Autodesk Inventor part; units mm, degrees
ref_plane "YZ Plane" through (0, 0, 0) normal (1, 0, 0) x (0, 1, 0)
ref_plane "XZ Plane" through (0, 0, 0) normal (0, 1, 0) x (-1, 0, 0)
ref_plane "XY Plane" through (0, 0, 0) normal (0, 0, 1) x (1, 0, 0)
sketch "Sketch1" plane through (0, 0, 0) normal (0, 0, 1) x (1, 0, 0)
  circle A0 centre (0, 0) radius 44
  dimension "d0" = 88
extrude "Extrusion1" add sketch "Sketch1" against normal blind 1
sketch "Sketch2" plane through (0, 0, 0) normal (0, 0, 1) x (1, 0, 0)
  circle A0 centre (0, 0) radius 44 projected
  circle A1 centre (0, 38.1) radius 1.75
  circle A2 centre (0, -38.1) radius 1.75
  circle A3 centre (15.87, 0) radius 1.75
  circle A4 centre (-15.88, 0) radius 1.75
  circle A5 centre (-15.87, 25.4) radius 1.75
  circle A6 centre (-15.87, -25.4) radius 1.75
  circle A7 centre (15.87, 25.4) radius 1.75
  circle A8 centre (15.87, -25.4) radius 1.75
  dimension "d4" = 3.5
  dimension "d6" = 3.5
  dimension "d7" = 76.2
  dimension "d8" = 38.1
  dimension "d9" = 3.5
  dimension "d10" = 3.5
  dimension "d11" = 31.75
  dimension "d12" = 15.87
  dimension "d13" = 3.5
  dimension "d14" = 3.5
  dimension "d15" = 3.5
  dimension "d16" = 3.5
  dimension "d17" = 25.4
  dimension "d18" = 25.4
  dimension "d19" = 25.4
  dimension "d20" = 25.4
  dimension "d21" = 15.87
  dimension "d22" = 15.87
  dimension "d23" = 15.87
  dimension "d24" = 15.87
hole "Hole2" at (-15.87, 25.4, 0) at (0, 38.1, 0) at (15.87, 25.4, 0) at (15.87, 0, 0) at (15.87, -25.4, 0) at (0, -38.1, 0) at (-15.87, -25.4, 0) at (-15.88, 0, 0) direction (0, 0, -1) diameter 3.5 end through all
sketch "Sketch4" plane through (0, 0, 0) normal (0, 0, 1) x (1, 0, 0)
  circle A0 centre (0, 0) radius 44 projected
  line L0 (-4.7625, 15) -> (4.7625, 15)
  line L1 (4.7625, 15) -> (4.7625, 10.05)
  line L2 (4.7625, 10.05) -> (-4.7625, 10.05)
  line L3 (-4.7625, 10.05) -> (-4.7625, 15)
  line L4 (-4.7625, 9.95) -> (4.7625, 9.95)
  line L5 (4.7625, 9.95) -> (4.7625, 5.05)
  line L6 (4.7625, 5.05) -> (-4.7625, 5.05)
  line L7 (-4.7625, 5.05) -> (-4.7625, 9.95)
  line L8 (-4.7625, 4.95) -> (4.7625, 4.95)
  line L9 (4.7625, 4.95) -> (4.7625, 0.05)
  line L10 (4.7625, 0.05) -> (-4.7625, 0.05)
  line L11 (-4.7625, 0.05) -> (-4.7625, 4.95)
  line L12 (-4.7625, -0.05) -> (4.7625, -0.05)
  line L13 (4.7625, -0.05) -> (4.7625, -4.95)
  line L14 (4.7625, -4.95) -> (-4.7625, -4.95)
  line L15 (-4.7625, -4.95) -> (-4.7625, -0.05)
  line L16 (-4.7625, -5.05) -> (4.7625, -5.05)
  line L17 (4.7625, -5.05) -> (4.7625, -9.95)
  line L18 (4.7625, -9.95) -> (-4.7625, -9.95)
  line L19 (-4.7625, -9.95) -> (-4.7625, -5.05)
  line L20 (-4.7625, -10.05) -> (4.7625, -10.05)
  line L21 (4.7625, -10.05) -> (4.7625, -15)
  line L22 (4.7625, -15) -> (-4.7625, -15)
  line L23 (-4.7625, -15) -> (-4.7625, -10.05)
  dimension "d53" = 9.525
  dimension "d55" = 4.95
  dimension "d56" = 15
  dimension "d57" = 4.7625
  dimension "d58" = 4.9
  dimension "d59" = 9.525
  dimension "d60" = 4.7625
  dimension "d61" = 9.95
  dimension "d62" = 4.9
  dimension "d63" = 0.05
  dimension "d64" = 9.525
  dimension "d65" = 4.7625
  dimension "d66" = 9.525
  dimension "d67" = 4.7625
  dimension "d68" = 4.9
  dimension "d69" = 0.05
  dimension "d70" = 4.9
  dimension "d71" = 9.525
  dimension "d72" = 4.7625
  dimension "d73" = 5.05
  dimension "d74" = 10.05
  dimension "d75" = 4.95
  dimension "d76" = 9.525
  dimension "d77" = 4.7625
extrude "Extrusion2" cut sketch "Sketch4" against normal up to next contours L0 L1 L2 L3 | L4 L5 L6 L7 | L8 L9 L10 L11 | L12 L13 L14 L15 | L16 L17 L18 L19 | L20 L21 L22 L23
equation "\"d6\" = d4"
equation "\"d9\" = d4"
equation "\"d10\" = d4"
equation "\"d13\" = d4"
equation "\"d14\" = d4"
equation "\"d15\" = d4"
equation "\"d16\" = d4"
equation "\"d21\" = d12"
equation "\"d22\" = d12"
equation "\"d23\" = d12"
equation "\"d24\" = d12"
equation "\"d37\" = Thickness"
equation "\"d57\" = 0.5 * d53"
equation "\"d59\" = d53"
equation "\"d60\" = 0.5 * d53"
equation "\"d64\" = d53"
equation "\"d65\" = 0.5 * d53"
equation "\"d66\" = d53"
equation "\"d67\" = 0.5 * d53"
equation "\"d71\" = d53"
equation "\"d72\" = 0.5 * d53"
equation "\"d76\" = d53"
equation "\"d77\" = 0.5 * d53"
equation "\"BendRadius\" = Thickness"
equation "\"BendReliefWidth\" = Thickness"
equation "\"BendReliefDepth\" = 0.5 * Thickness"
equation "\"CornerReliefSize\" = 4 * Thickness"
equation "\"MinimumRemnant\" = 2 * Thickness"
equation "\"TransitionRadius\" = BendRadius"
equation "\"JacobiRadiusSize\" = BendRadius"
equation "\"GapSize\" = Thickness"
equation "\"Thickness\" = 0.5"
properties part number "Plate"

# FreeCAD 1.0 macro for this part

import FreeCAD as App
import Part
import Sketcher

doc = App.newDocument("Part")
body = doc.addObject("PartDesign::Body", "Body")

# Sketch on XY plane
sketch1 = body.newObject("Sketcher::SketchObject", "Sketch")
sketch1.AttachmentSupport = (doc.getObject("XY_Plane"), [""])
sketch1.MapMode = "FlatFace"
sketch1.addGeometry(Part.Circle(App.Vector(0, 0, 0), App.Vector(0, 0, 1), 44), False)
sketch1.addConstraint(Sketcher.Constraint("Coincident", 0, 3, -1, 1))
sketch1.addConstraint(Sketcher.Constraint("Diameter", 0, 88.0))
pad1 = body.newObject("PartDesign::Pad", "Pad")
pad1.Profile = sketch1
pad1.Length = 1
pad1.Reversed = True

# Sketch on XY plane
sketch2 = body.newObject("Sketcher::SketchObject", "Sketch001")
sketch2.AttachmentSupport = (doc.getObject("XY_Plane"), [""])
sketch2.MapMode = "FlatFace"
sketch2.addGeometry(Part.Circle(App.Vector(-15.9, 25.4, 0), App.Vector(0, 0, 1), 1.8), False)
sketch2.addGeometry(Part.Circle(App.Vector(0, 38.1, 0), App.Vector(0, 0, 1), 1.8), False)
sketch2.addGeometry(Part.Circle(App.Vector(15.9, 25.4, 0), App.Vector(0, 0, 1), 1.8), False)
sketch2.addGeometry(Part.Circle(App.Vector(15.9, 0, 0), App.Vector(0, 0, 1), 1.8), False)
sketch2.addGeometry(Part.Circle(App.Vector(15.9, -25.4, 0), App.Vector(0, 0, 1), 1.8), False)
sketch2.addGeometry(Part.Circle(App.Vector(0, -38.1, 0), App.Vector(0, 0, 1), 1.8), False)
sketch2.addGeometry(Part.Circle(App.Vector(-15.9, -25.4, 0), App.Vector(0, 0, 1), 1.8), False)
sketch2.addGeometry(Part.Circle(App.Vector(-15.9, 0, 0), App.Vector(0, 0, 1), 1.8), False)
sketch2.addConstraint(Sketcher.Constraint("Equal", 0, 1))
sketch2.addConstraint(Sketcher.Constraint("Equal", 1, 2))
sketch2.addConstraint(Sketcher.Constraint("Equal", 2, 3))
sketch2.addConstraint(Sketcher.Constraint("Equal", 3, 4))
sketch2.addConstraint(Sketcher.Constraint("Equal", 4, 5))
sketch2.addConstraint(Sketcher.Constraint("Equal", 5, 6))
sketch2.addConstraint(Sketcher.Constraint("Equal", 6, 7))
sketch2.addConstraint(Sketcher.Constraint("Symmetric", 0, 3, 4, 3, -1, 1))
sketch2.addConstraint(Sketcher.Constraint("Symmetric", 1, 3, 5, 3, -1, 1))
sketch2.addConstraint(Sketcher.Constraint("Symmetric", 2, 3, 6, 3, -1, 1))
sketch2.addConstraint(Sketcher.Constraint("Symmetric", 0, 3, 2, 3, -2))
sketch2.addConstraint(Sketcher.Constraint("PointOnObject", 1, 3, -2))
sketch2.addConstraint(Sketcher.Constraint("PointOnObject", 3, 3, -1))
sketch2.addConstraint(Sketcher.Constraint("PointOnObject", 7, 3, -1))
sketch2.addConstraint(Sketcher.Constraint("Vertical", 2, 3, 3, 3))
sketch2.addConstraint(Sketcher.Constraint("Diameter", 0, 3.5))
sketch2.addConstraint(Sketcher.Constraint("DistanceY", -1, 1, 0, 3, 25.4))
sketch2.addConstraint(Sketcher.Constraint("DistanceY", -1, 1, 1, 3, 38.1))
sketch2.addConstraint(Sketcher.Constraint("DistanceX", 0, 3, -1, 1, 15.87))
sketch2.addConstraint(Sketcher.Constraint("DistanceX", 7, 3, -1, 1, 15.88))
doc.recompute()
hole = body.newObject("PartDesign::Hole", "Hole")
hole.Profile = sketch2
hole.ThreadType = "None"
hole.Diameter = 3.5
hole.DepthType = "ThroughAll"

# Sketch on XY plane
sketch3 = body.newObject("Sketcher::SketchObject", "Sketch002")
sketch3.AttachmentSupport = (doc.getObject("XY_Plane"), [""])
sketch3.MapMode = "FlatFace"
sketch3.addGeometry(Part.LineSegment(App.Vector(4.8, 15, 0), App.Vector(-4.8, 15, 0)), False)
sketch3.addGeometry(Part.LineSegment(App.Vector(-4.8, 15, 0), App.Vector(-4.8, 10.1, 0)), False)
sketch3.addGeometry(Part.LineSegment(App.Vector(-4.8, 10.1, 0), App.Vector(4.8, 10.1, 0)), False)
sketch3.addGeometry(Part.LineSegment(App.Vector(4.8, 10.1, 0), App.Vector(4.8, 15, 0)), False)
sketch3.addGeometry(Part.LineSegment(App.Vector(4.8, 9.9, 0), App.Vector(-4.8, 9.9, 0)), False)
sketch3.addGeometry(Part.LineSegment(App.Vector(-4.8, 9.9, 0), App.Vector(-4.8, 5, 0)), False)
sketch3.addGeometry(Part.LineSegment(App.Vector(-4.8, 5, 0), App.Vector(4.8, 5, 0)), False)
sketch3.addGeometry(Part.LineSegment(App.Vector(4.8, 5, 0), App.Vector(4.8, 9.9, 0)), False)
sketch3.addGeometry(Part.LineSegment(App.Vector(4.8, 5, 0), App.Vector(-4.8, 5, 0)), False)
sketch3.addGeometry(Part.LineSegment(App.Vector(-4.8, 5, 0), App.Vector(-4.8, 0.1, 0)), False)
sketch3.addGeometry(Part.LineSegment(App.Vector(-4.8, 0.1, 0), App.Vector(4.8, 0.1, 0)), False)
sketch3.addGeometry(Part.LineSegment(App.Vector(4.8, 0.1, 0), App.Vector(4.8, 5, 0)), False)
sketch3.addGeometry(Part.LineSegment(App.Vector(4.8, -0.1, 0), App.Vector(-4.8, -0.1, 0)), False)
sketch3.addGeometry(Part.LineSegment(App.Vector(-4.8, -0.1, 0), App.Vector(-4.8, -5, 0)), False)
sketch3.addGeometry(Part.LineSegment(App.Vector(-4.8, -5, 0), App.Vector(4.8, -5, 0)), False)
sketch3.addGeometry(Part.LineSegment(App.Vector(4.8, -5, 0), App.Vector(4.8, -0.1, 0)), False)
sketch3.addGeometry(Part.LineSegment(App.Vector(4.8, -5, 0), App.Vector(-4.8, -5, 0)), False)
sketch3.addGeometry(Part.LineSegment(App.Vector(-4.8, -5, 0), App.Vector(-4.8, -9.9, 0)), False)
sketch3.addGeometry(Part.LineSegment(App.Vector(-4.8, -9.9, 0), App.Vector(4.8, -9.9, 0)), False)
sketch3.addGeometry(Part.LineSegment(App.Vector(4.8, -9.9, 0), App.Vector(4.8, -5, 0)), False)
sketch3.addGeometry(Part.LineSegment(App.Vector(4.8, -10.1, 0), App.Vector(-4.8, -10.1, 0)), False)
sketch3.addGeometry(Part.LineSegment(App.Vector(-4.8, -10.1, 0), App.Vector(-4.8, -15, 0)), False)
sketch3.addGeometry(Part.LineSegment(App.Vector(-4.8, -15, 0), App.Vector(4.8, -15, 0)), False)
sketch3.addGeometry(Part.LineSegment(App.Vector(4.8, -15, 0), App.Vector(4.8, -10.1, 0)), False)
sketch3.addConstraint(Sketcher.Constraint("Coincident", 0, 2, 1, 1))
sketch3.addConstraint(Sketcher.Constraint("Coincident", 1, 2, 2, 1))
sketch3.addConstraint(Sketcher.Constraint("Coincident", 2, 2, 3, 1))
sketch3.addConstraint(Sketcher.Constraint("Coincident", 3, 2, 0, 1))
sketch3.addConstraint(Sketcher.Constraint("Coincident", 4, 2, 5, 1))
sketch3.addConstraint(Sketcher.Constraint("Coincident", 5, 2, 6, 1))
sketch3.addConstraint(Sketcher.Constraint("Coincident", 6, 2, 7, 1))
sketch3.addConstraint(Sketcher.Constraint("Coincident", 7, 2, 4, 1))
sketch3.addConstraint(Sketcher.Constraint("Coincident", 8, 2, 9, 1))
sketch3.addConstraint(Sketcher.Constraint("Coincident", 9, 2, 10, 1))
sketch3.addConstraint(Sketcher.Constraint("Coincident", 10, 2, 11, 1))
sketch3.addConstraint(Sketcher.Constraint("Coincident", 11, 2, 8, 1))
sketch3.addConstraint(Sketcher.Constraint("Coincident", 12, 2, 13, 1))
sketch3.addConstraint(Sketcher.Constraint("Coincident", 13, 2, 14, 1))
sketch3.addConstraint(Sketcher.Constraint("Coincident", 14, 2, 15, 1))
sketch3.addConstraint(Sketcher.Constraint("Coincident", 15, 2, 12, 1))
sketch3.addConstraint(Sketcher.Constraint("Coincident", 16, 2, 17, 1))
sketch3.addConstraint(Sketcher.Constraint("Coincident", 17, 2, 18, 1))
sketch3.addConstraint(Sketcher.Constraint("Coincident", 18, 2, 19, 1))
sketch3.addConstraint(Sketcher.Constraint("Coincident", 19, 2, 16, 1))
sketch3.addConstraint(Sketcher.Constraint("Coincident", 20, 2, 21, 1))
sketch3.addConstraint(Sketcher.Constraint("Coincident", 21, 2, 22, 1))
sketch3.addConstraint(Sketcher.Constraint("Coincident", 22, 2, 23, 1))
sketch3.addConstraint(Sketcher.Constraint("Coincident", 23, 2, 20, 1))
sketch3.addConstraint(Sketcher.Constraint("Horizontal", 0))
sketch3.addConstraint(Sketcher.Constraint("Vertical", 1))
sketch3.addConstraint(Sketcher.Constraint("Horizontal", 2))
sketch3.addConstraint(Sketcher.Constraint("Vertical", 3))
sketch3.addConstraint(Sketcher.Constraint("Horizontal", 4))
sketch3.addConstraint(Sketcher.Constraint("Vertical", 5))
sketch3.addConstraint(Sketcher.Constraint("Horizontal", 6))
sketch3.addConstraint(Sketcher.Constraint("Vertical", 7))
sketch3.addConstraint(Sketcher.Constraint("Horizontal", 8))
sketch3.addConstraint(Sketcher.Constraint("Vertical", 9))
sketch3.addConstraint(Sketcher.Constraint("Horizontal", 10))
sketch3.addConstraint(Sketcher.Constraint("Vertical", 11))
sketch3.addConstraint(Sketcher.Constraint("Horizontal", 12))
sketch3.addConstraint(Sketcher.Constraint("Vertical", 13))
sketch3.addConstraint(Sketcher.Constraint("Horizontal", 14))
sketch3.addConstraint(Sketcher.Constraint("Vertical", 15))
sketch3.addConstraint(Sketcher.Constraint("Horizontal", 16))
sketch3.addConstraint(Sketcher.Constraint("Vertical", 17))
sketch3.addConstraint(Sketcher.Constraint("Horizontal", 18))
sketch3.addConstraint(Sketcher.Constraint("Vertical", 19))
sketch3.addConstraint(Sketcher.Constraint("Horizontal", 20))
sketch3.addConstraint(Sketcher.Constraint("Vertical", 21))
sketch3.addConstraint(Sketcher.Constraint("Horizontal", 22))
sketch3.addConstraint(Sketcher.Constraint("Vertical", 23))
sketch3.addConstraint(Sketcher.Constraint("Symmetric", 10, 2, 12, 2, -1, 1))
sketch3.addConstraint(Sketcher.Constraint("Symmetric", 8, 2, 14, 2, -1, 1))
sketch3.addConstraint(Sketcher.Constraint("Symmetric", 6, 2, 16, 2, -1, 1))
sketch3.addConstraint(Sketcher.Constraint("Symmetric", 4, 2, 18, 2, -1, 1))
sketch3.addConstraint(Sketcher.Constraint("Symmetric", 2, 2, 20, 2, -1, 1))
sketch3.addConstraint(Sketcher.Constraint("Symmetric", 0, 2, 22, 2, -1, 1))
sketch3.addConstraint(Sketcher.Constraint("Vertical", 1, 2, 4, 2))
sketch3.addConstraint(Sketcher.Constraint("Vertical", 3, 2, 6, 2))
sketch3.addConstraint(Sketcher.Constraint("Vertical", 5, 2, 8, 2))
sketch3.addConstraint(Sketcher.Constraint("Vertical", 7, 2, 10, 2))
sketch3.addConstraint(Sketcher.Constraint("Vertical", 9, 2, 12, 2))
sketch3.addConstraint(Sketcher.Constraint("Equal", 7, 9))
sketch3.addConstraint(Sketcher.Constraint("DistanceY", 5, 2, 5, 1, 4.9))
sketch3.addConstraint(Sketcher.Constraint("DistanceY", -1, 1, 0, 2, 15.0))
sketch3.addConstraint(Sketcher.Constraint("DistanceY", 1, 2, 1, 1, 4.95))
sketch3.addConstraint(Sketcher.Constraint("DistanceX", 0, 2, 0, 1, 9.525))
sketch3.addConstraint(Sketcher.Constraint("DistanceY", -1, 1, 4, 2, 9.95))
sketch3.addConstraint(Sketcher.Constraint("DistanceY", -1, 1, 8, 2, 4.95))
pocket1 = body.newObject("PartDesign::Pocket", "Pocket")
pocket1.Profile = sketch3
pocket1.Type = "UpToFirst"

doc.recompute()
